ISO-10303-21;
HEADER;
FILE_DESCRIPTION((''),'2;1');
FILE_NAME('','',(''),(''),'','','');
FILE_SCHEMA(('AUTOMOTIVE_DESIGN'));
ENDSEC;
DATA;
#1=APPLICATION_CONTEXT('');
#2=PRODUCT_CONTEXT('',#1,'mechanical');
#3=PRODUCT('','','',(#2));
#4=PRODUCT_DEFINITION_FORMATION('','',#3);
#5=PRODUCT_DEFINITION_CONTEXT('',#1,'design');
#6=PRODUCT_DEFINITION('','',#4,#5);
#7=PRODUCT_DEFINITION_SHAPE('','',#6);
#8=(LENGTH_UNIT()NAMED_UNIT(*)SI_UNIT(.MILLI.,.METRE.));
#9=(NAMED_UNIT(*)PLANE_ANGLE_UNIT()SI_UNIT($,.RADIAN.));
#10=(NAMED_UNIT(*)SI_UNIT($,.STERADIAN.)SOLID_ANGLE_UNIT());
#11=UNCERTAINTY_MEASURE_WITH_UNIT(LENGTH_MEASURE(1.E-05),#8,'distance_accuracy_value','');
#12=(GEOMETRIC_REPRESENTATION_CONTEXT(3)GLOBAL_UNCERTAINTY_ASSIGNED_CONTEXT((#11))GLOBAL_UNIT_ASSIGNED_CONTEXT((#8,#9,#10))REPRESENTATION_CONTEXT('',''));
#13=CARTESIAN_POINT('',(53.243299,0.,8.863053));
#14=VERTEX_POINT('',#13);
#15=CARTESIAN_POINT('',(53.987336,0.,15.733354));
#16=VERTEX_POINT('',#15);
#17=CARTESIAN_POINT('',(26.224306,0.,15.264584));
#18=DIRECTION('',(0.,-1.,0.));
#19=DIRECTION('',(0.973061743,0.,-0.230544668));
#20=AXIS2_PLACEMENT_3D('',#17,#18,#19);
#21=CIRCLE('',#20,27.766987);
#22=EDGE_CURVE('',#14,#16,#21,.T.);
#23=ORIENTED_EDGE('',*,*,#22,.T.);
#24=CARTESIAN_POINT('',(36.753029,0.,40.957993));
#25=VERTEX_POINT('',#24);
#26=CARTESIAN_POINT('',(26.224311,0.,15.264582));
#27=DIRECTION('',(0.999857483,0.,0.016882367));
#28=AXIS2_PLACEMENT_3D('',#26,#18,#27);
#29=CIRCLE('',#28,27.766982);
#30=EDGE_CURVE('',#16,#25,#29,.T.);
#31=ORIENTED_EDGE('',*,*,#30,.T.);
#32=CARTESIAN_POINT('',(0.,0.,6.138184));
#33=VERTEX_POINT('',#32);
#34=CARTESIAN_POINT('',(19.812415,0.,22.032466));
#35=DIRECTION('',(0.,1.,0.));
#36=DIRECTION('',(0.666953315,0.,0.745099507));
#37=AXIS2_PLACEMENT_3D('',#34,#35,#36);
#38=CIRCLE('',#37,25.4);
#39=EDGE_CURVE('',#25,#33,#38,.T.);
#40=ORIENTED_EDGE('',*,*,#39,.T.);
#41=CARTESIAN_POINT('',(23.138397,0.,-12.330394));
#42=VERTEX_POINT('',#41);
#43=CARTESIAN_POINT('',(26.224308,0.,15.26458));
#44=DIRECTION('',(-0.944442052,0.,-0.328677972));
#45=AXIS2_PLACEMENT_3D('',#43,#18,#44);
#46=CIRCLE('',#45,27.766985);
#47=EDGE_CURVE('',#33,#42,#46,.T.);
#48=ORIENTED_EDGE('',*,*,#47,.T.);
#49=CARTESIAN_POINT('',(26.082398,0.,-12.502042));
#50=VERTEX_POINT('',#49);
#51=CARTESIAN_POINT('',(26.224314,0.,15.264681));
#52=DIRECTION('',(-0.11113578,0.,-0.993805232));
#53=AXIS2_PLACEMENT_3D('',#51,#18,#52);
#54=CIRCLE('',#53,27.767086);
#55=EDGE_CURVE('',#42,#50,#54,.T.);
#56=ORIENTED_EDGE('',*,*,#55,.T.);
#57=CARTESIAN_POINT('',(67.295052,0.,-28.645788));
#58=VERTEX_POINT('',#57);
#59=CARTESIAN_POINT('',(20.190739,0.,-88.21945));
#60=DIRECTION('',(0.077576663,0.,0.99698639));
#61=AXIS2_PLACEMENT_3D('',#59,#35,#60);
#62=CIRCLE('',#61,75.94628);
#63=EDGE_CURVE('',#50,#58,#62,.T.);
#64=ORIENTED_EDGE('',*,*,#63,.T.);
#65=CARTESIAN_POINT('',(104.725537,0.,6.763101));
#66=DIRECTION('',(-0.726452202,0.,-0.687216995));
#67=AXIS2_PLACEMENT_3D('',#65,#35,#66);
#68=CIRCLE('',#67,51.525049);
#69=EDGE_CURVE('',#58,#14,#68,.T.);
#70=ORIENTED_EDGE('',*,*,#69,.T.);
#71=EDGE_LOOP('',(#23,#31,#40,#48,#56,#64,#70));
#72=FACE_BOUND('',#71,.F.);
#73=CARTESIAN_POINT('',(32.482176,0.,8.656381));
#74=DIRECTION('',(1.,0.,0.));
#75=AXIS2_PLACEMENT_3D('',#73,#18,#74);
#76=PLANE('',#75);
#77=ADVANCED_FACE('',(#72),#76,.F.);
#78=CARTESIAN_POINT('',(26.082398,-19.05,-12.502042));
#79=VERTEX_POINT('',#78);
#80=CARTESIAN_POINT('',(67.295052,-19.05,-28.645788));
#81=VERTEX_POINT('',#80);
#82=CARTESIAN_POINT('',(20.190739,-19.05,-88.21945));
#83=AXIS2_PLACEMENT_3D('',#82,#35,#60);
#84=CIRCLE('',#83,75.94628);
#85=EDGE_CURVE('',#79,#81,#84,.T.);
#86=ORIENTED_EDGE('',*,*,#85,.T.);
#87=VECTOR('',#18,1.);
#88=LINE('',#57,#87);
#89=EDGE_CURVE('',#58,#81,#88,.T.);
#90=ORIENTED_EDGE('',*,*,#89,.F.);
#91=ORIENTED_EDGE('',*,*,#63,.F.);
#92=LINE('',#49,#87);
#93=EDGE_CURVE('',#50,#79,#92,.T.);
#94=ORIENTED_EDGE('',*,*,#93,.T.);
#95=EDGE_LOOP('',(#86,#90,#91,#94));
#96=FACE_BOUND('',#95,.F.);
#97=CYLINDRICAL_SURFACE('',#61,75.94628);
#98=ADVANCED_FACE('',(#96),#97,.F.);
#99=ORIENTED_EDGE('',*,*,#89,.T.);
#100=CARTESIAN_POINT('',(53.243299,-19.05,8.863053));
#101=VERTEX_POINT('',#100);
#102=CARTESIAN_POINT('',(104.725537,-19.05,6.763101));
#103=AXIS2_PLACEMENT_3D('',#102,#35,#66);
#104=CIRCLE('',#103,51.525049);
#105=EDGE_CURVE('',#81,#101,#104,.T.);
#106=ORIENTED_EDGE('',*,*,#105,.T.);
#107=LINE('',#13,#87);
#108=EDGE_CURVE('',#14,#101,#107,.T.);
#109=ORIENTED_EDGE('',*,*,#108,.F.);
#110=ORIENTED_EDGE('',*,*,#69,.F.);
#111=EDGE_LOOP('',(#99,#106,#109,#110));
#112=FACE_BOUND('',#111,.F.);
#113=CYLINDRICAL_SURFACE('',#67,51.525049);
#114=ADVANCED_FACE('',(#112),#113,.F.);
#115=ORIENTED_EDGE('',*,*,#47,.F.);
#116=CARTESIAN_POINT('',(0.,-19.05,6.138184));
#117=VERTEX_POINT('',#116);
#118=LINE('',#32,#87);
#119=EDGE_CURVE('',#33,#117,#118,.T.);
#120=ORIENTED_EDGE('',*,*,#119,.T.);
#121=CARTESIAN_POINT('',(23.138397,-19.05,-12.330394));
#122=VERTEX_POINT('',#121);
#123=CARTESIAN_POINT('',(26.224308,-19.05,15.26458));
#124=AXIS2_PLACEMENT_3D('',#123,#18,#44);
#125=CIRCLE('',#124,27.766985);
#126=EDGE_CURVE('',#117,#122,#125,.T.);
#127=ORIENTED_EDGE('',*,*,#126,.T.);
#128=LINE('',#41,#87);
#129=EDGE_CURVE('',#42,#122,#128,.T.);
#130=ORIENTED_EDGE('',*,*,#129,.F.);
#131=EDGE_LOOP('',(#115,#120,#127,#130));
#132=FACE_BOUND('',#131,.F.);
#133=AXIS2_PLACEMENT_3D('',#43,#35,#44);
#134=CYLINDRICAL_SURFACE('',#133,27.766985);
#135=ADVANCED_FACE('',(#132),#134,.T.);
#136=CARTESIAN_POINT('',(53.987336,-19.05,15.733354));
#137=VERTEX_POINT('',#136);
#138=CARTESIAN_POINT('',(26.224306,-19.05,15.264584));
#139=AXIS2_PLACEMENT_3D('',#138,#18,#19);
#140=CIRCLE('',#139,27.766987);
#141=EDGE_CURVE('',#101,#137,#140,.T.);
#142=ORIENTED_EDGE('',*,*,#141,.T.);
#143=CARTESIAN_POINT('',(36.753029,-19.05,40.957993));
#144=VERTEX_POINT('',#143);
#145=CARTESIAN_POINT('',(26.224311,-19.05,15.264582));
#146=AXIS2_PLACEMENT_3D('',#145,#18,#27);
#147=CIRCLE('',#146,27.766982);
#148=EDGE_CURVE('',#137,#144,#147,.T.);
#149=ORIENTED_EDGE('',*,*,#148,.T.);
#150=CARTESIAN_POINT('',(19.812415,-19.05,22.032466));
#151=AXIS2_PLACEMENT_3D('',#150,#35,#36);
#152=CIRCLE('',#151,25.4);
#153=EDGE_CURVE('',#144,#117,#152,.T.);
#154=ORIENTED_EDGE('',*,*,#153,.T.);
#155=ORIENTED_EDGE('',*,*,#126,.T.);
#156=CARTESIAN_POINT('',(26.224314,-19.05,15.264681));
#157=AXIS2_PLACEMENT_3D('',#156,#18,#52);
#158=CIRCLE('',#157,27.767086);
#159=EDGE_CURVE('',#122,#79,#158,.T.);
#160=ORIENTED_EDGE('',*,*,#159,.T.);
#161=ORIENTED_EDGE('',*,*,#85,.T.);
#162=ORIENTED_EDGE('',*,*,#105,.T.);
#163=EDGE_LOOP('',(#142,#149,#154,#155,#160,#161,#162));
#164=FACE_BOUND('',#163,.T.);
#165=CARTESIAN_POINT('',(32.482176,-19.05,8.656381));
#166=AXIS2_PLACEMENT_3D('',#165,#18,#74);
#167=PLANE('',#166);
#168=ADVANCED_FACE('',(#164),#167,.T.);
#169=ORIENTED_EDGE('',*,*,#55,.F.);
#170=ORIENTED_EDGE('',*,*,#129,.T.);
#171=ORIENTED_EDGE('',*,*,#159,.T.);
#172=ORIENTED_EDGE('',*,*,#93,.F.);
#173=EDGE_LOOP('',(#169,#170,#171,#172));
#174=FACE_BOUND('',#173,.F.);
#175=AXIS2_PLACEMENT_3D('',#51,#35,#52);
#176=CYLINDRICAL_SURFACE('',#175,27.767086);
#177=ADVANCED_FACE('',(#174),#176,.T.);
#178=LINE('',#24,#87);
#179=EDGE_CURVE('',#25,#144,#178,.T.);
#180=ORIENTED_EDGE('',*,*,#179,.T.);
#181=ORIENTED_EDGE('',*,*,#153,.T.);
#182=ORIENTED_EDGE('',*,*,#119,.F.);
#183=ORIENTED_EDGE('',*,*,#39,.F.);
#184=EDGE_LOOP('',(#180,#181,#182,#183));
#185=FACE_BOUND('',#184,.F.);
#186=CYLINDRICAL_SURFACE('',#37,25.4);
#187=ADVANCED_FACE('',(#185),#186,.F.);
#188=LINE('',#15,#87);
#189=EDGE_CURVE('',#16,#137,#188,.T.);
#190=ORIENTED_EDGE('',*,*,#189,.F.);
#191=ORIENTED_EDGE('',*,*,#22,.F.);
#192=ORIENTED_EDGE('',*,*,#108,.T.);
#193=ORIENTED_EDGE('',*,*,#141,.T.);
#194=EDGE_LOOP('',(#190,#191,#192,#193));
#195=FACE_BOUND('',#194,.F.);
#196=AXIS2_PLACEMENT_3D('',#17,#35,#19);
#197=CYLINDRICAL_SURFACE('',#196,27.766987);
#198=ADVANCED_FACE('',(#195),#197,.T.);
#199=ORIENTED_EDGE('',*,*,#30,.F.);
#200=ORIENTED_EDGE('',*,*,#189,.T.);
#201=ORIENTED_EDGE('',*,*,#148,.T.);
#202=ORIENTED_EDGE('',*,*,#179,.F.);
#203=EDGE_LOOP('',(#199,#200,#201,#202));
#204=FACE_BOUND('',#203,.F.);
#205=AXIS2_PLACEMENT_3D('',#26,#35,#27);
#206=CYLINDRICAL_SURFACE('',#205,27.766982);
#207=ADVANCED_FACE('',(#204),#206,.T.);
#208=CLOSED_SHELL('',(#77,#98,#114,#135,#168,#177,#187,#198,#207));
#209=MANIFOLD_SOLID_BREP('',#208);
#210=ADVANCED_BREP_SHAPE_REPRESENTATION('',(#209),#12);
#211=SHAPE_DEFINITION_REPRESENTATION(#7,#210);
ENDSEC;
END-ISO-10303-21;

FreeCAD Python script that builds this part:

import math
import FreeCAD as App
import Part
import Sketcher

V = App.Vector
Q = App.Units.Quantity

doc = App.newDocument("Part")
body = doc.addObject("PartDesign::Body", "Body")

# Sketch on XZ plane
sketch1 = doc.addObject("Sketcher::SketchObject", "Sketch")
body.addObject(sketch1)
sketch1.AttachmentSupport = (doc.XZ_Plane, [""])
sketch1.MapMode = "FlatFace"
sketch1.addGeometry(Part.ArcOfCircle(Part.Circle(V(19.812415, 22.032466, 0), V(0, 0, 1), 25.4), math.radians(-141.262072), math.radians(48.167647)), False)
sketch1.addGeometry(Part.ArcOfCircle(Part.Circle(V(26.224308, 15.26458, 0), V(0, 0, 1), 27.766985), math.radians(-160.811447), math.radians(-96.380804)), False)
sketch1.addGeometry(Part.ArcOfCircle(Part.Circle(V(26.224314, 15.264681, 0), V(0, 0, 1), 27.767086), math.radians(-96.380792), math.radians(-90.292836)), False)
sketch1.addGeometry(Part.ArcOfCircle(Part.Circle(V(20.190739, -88.21945, 0), V(0, 0, 1), 75.94628), math.radians(51.666922), math.radians(85.550714)), False)
sketch1.addGeometry(Part.ArcOfCircle(Part.Circle(V(104.725537, 6.763101, 0), V(0, 0, 1), 51.525049), math.radians(177.664209), math.radians(223.410212)), False)
sketch1.addGeometry(Part.ArcOfCircle(Part.Circle(V(26.224306, 15.264584, 0), V(0, 0, 1), 27.766987), math.radians(-13.329141), math.radians(0.967329)), False)
sketch1.addGeometry(Part.ArcOfCircle(Part.Circle(V(26.224311, 15.264582, 0), V(0, 0, 1), 27.766982), math.radians(0.967334), math.radians(67.717026)), False)
sketch1.addConstraint(Sketcher.Constraint("Coincident", 0, 1, 1, 1))
sketch1.addConstraint(Sketcher.Constraint("Tangent", 1, 2, 2, 1))
sketch1.addConstraint(Sketcher.Constraint("Coincident", 2, 2, 3, 2))
sketch1.addConstraint(Sketcher.Constraint("Coincident", 3, 1, 4, 2))
sketch1.addConstraint(Sketcher.Constraint("Coincident", 4, 1, 5, 1))
sketch1.addConstraint(Sketcher.Constraint("Tangent", 5, 2, 6, 1))
sketch1.addConstraint(Sketcher.Constraint("Coincident", 6, 2, 0, 2))
sketch1.addConstraint(Sketcher.Constraint("Coincident", 5, 3, 1, 3))
sketch1.addConstraint(Sketcher.Constraint("PointOnObject", 0, 1, -2))
sketch1.addConstraint(Sketcher.Constraint("Radius", 0, Q("1 in")))
sketch1.addConstraint(Sketcher.Constraint("Radius", 3, 75.94628))
sketch1.addConstraint(Sketcher.Constraint("Radius", 4, 51.525049))
sketch1.addConstraint(Sketcher.Constraint("Radius", 6, 27.766982))
sketch1.addConstraint(Sketcher.Constraint("Radius", 1, 27.766985))
sketch1.addConstraint(Sketcher.Constraint("Radius", 2, 27.767086))
sketch1.addConstraint(Sketcher.Constraint("Radius", 5, 27.766987))
sketch1.addConstraint(Sketcher.Constraint("DistanceY", -1, 1, 4, 3, 6.763101))
sketch1.addConstraint(Sketcher.Constraint("DistanceX", -1, 1, 4, 1, 53.243299))
sketch1.addConstraint(Sketcher.Constraint("DistanceX", 0, 3, 2, 3, 6.411899))
sketch1.addConstraint(Sketcher.Constraint("DistanceY", 0, 1, 5, 3, 9.1264))
sketch1.addConstraint(Sketcher.Constraint("DistanceX", 1, 2, 2, 2, 2.944001))
sketch1.addConstraint(Sketcher.Constraint("DistanceX", 2, 2, 4, 1, 27.160901))
sketch1.addConstraint(Sketcher.Constraint("DistanceY", 4, 1, 5, 2, 6.870301))
sketch1.addConstraint(Sketcher.Constraint("DistanceY", -1, 1, 1, 3, 15.26458))
sketch1.addConstraint(Sketcher.Constraint("DistanceX", -1, 1, 3, 3, 20.190739))
pad1 = doc.addObject("PartDesign::Pad", "Pad")
body.addObject(pad1)
pad1.Profile = sketch1
pad1.Length = Q("0.75 in")

doc.recompute()
